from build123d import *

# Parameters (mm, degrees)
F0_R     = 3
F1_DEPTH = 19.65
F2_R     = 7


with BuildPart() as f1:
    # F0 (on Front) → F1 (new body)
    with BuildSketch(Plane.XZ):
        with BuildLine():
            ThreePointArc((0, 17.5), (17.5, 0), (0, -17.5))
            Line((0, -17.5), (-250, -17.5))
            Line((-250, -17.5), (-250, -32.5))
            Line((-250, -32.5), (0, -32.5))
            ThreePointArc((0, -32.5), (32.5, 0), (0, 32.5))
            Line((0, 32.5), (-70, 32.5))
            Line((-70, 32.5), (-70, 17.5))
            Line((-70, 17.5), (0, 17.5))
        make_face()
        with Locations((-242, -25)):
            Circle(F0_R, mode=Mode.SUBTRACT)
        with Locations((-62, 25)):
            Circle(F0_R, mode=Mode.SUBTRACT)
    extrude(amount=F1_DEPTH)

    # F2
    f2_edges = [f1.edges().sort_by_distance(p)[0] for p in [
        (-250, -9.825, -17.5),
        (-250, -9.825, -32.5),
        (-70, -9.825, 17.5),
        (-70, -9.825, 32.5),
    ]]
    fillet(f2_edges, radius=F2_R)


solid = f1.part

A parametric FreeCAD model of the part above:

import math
import FreeCAD as App
import Part
import Sketcher

V = App.Vector
Q = App.Units.Quantity


def edges_at(feature, points):
    """Names of the edges that pass closest to the given points."""
    edges = feature.Shape.Edges
    near = lambda p: min(range(len(edges)), key=lambda i: edges[i].distToShape(Part.Vertex(*p))[0])
    return sorted({f"Edge{near(p) + 1}" for p in points})

doc = App.newDocument("Part")
body = doc.addObject("PartDesign::Body", "Body")

sketch1 = doc.addObject("Sketcher::SketchObject", "Sketch")
body.addObject(sketch1)
sketch1.AttachmentSupport = (doc.XZ_Plane, [""])
sketch1.MapMode = "FlatFace"
sketch1.addGeometry(Part.ArcOfCircle(Part.Circle(V(0, 0, 0), V(0, 0, 1), 17.5), math.radians(-90), math.radians(90)), False)
sketch1.addGeometry(Part.LineSegment(V(0, -17.5, 0), V(-250, -17.5, 0)), False)
sketch1.addGeometry(Part.LineSegment(V(-250, -17.5, 0), V(-250, -32.5, 0)), False)
sketch1.addGeometry(Part.LineSegment(V(-250, -32.5, 0), V(0, -32.5, 0)), False)
sketch1.addGeometry(Part.ArcOfCircle(Part.Circle(V(0, 0, 0), V(0, 0, 1), 32.5), math.radians(-90), math.radians(90)), False)
sketch1.addGeometry(Part.LineSegment(V(0, 32.5, 0), V(-70, 32.5, 0)), False)
sketch1.addGeometry(Part.LineSegment(V(-70, 32.5, 0), V(-70, 17.5, 0)), False)
sketch1.addGeometry(Part.LineSegment(V(-70, 17.5, 0), V(0, 17.5, 0)), False)
sketch1.addGeometry(Part.Circle(V(-242, -25, 0), V(0, 0, 1), 3), False)
sketch1.addGeometry(Part.Circle(V(-62, 25, 0), V(0, 0, 1), 3), False)
sketch1.addConstraint(Sketcher.Constraint("Tangent", 0, 1, 1, 1))
sketch1.addConstraint(Sketcher.Constraint("Coincident", 1, 2, 2, 1))
sketch1.addConstraint(Sketcher.Constraint("Coincident", 2, 2, 3, 1))
sketch1.addConstraint(Sketcher.Constraint("Tangent", 3, 2, 4, 1))
sketch1.addConstraint(Sketcher.Constraint("Tangent", 4, 2, 5, 1))
sketch1.addConstraint(Sketcher.Constraint("Coincident", 5, 2, 6, 1))
sketch1.addConstraint(Sketcher.Constraint("Coincident", 6, 2, 7, 1))
sketch1.addConstraint(Sketcher.Constraint("Tangent", 7, 2, 0, 2))
sketch1.addConstraint(Sketcher.Constraint("Horizontal", 1))
sketch1.addConstraint(Sketcher.Constraint("Vertical", 2))
sketch1.addConstraint(Sketcher.Constraint("Horizontal", 3))
sketch1.addConstraint(Sketcher.Constraint("Horizontal", 5))
sketch1.addConstraint(Sketcher.Constraint("Vertical", 6))
sketch1.addConstraint(Sketcher.Constraint("Horizontal", 7))
sketch1.addConstraint(Sketcher.Constraint("Coincident", 0, 3, -1, 1))
sketch1.addConstraint(Sketcher.Constraint("Coincident", 4, 3, -1, 1))
sketch1.addConstraint(Sketcher.Constraint("Equal", 8, 9))
sketch1.addConstraint(Sketcher.Constraint("Diameter", 8, Q("6 mm")))
sketch1.addConstraint(Sketcher.Constraint("Radius", 0, Q("17.5 mm")))
sketch1.addConstraint(Sketcher.Constraint("Radius", 4, Q("32.5 mm")))
sketch1.addConstraint(Sketcher.Constraint("DistanceX", 1, 2, 1, 1, Q("250 mm")))
sketch1.addConstraint(Sketcher.Constraint("DistanceX", 5, 2, 5, 1, Q("70 mm")))
sketch1.addConstraint(Sketcher.Constraint("DistanceX", 8, 3, -1, 1, Q("242 mm")))
sketch1.addConstraint(Sketcher.Constraint("DistanceY", 8, 3, -1, 1, Q("25 mm")))
sketch1.addConstraint(Sketcher.Constraint("DistanceX", 9, 3, -1, 1, Q("62 mm")))
sketch1.addConstraint(Sketcher.Constraint("DistanceY", -1, 1, 9, 3, Q("25 mm")))
pad1 = doc.addObject("PartDesign::Pad", "Pad")
body.addObject(pad1)
pad1.Profile = sketch1
pad1.Length = 19.65
doc.recompute()

fillet = doc.addObject("PartDesign::Fillet", "Fillet")
body.addObject(fillet)
fillet.Base = (pad1, edges_at(pad1, [
    (-250, -9.825, -17.5),
    (-250, -9.825, -32.5),
    (-70, -9.825, 17.5),
    (-70, -9.825, 32.5),
]))
fillet.Radius = 7

doc.recompute()
